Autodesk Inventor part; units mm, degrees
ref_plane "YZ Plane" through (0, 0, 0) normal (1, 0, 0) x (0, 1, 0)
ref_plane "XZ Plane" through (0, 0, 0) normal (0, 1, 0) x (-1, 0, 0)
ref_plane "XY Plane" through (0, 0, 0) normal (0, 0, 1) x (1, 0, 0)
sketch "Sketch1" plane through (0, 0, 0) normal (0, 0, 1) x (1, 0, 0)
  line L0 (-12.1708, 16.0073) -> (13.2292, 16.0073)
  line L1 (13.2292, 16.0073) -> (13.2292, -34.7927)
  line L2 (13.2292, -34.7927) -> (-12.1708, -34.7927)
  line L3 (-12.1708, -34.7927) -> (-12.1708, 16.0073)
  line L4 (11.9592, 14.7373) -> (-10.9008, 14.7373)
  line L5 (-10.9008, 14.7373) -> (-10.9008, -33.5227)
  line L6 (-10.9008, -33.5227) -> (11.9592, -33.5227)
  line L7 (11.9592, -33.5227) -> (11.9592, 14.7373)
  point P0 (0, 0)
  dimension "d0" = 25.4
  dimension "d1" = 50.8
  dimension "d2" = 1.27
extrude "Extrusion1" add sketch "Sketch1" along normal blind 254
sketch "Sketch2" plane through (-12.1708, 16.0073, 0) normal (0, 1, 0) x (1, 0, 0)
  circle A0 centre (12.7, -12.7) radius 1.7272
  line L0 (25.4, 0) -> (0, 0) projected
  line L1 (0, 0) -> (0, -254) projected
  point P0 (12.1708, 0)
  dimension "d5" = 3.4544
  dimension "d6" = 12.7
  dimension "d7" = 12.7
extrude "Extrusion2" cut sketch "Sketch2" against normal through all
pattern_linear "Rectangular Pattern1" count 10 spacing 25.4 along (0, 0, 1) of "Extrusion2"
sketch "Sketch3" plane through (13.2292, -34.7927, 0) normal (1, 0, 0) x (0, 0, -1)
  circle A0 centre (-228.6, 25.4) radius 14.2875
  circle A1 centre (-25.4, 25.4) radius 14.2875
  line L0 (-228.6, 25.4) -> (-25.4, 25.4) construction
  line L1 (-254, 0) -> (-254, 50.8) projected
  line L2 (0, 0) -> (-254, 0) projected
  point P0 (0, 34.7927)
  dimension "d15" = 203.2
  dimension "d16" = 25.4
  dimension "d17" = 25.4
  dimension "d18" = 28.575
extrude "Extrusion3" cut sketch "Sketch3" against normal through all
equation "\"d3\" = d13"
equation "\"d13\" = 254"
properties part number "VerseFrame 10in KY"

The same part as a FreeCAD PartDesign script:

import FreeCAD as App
import Part
import Sketcher

V = App.Vector
Q = App.Units.Quantity

doc = App.newDocument("Part")
body = doc.addObject("PartDesign::Body", "Body")

# Sketch on XY plane
sketch1 = doc.addObject("Sketcher::SketchObject", "Sketch")
body.addObject(sketch1)
sketch1.AttachmentSupport = (doc.XY_Plane, [""])
sketch1.MapMode = "FlatFace"
sketch1.addGeometry(Part.LineSegment(V(13, 16, 0), V(-12, 16, 0)), False)
sketch1.addGeometry(Part.LineSegment(V(-12, 16, 0), V(-12, -35, 0)), False)
sketch1.addGeometry(Part.LineSegment(V(-12, -35, 0), V(13, -35, 0)), False)
sketch1.addGeometry(Part.LineSegment(V(13, -35, 0), V(13, 16, 0)), False)
sketch1.addGeometry(Part.LineSegment(V(-11, 15, 0), V(12, 15, 0)), False)
sketch1.addGeometry(Part.LineSegment(V(12, 15, 0), V(12, -34, 0)), False)
sketch1.addGeometry(Part.LineSegment(V(12, -34, 0), V(-11, -34, 0)), False)
sketch1.addGeometry(Part.LineSegment(V(-11, -34, 0), V(-11, 15, 0)), False)
sketch1.addConstraint(Sketcher.Constraint("Coincident", 0, 2, 1, 1))
sketch1.addConstraint(Sketcher.Constraint("Coincident", 1, 2, 2, 1))
sketch1.addConstraint(Sketcher.Constraint("Coincident", 2, 2, 3, 1))
sketch1.addConstraint(Sketcher.Constraint("Coincident", 3, 2, 0, 1))
sketch1.addConstraint(Sketcher.Constraint("Coincident", 4, 2, 5, 1))
sketch1.addConstraint(Sketcher.Constraint("Coincident", 5, 2, 6, 1))
sketch1.addConstraint(Sketcher.Constraint("Coincident", 6, 2, 7, 1))
sketch1.addConstraint(Sketcher.Constraint("Coincident", 7, 2, 4, 1))
sketch1.addConstraint(Sketcher.Constraint("Horizontal", 0))
sketch1.addConstraint(Sketcher.Constraint("Vertical", 1))
sketch1.addConstraint(Sketcher.Constraint("Horizontal", 2))
sketch1.addConstraint(Sketcher.Constraint("Vertical", 3))
sketch1.addConstraint(Sketcher.Constraint("Horizontal", 4))
sketch1.addConstraint(Sketcher.Constraint("Vertical", 5))
sketch1.addConstraint(Sketcher.Constraint("Horizontal", 6))
sketch1.addConstraint(Sketcher.Constraint("Vertical", 7))
sketch1.addConstraint(Sketcher.Constraint("DistanceX", 0, 2, 0, 1, Q("1 in")))
sketch1.addConstraint(Sketcher.Constraint("DistanceY", 1, 2, 1, 1, Q("2 in")))
sketch1.addConstraint(Sketcher.Constraint("DistanceX", 4, 2, 3, 2, Q("0.05 in")))
sketch1.addConstraint(Sketcher.Constraint("DistanceY", 4, 2, 3, 2, Q("0.05 in")))
sketch1.addConstraint(Sketcher.Constraint("DistanceY", 2, 2, 5, 2, Q("0.05 in")))
sketch1.addConstraint(Sketcher.Constraint("DistanceX", 1, 2, 6, 2, Q("0.05 in")))
sketch1.addConstraint(Sketcher.Constraint("DistanceY", -1, 1, 0, 2, Q("0.6302 in")))
sketch1.addConstraint(Sketcher.Constraint("DistanceX", 0, 2, -1, 1, 12.1708))
pad1 = doc.addObject("PartDesign::Pad", "Pad")
body.addObject(pad1)
pad1.Profile = sketch1
pad1.Length = Q("10 in")

# Sketch on XZ plane
sketch2 = doc.addObject("Sketcher::SketchObject", "Sketch001")
body.addObject(sketch2)
sketch2.AttachmentSupport = (doc.XZ_Plane, [""])
sketch2.MapMode = "FlatFace"
sketch2.AttachmentOffset = App.Placement(V(0, 0, -0.6302087 * 25.4), App.Rotation())
sketch2.addGeometry(Part.Circle(V(0.5, 12.7, 0), V(0, 0, 1), 1.7), False)
sketch2.addConstraint(Sketcher.Constraint("Diameter", 0, Q("0.136 in")))
sketch2.addConstraint(Sketcher.Constraint("DistanceY", -1, 1, 0, 3, Q("0.5 in")))
sketch2.addConstraint(Sketcher.Constraint("DistanceX", -1, 1, 0, 3, 0.5292))
pocket1 = doc.addObject("PartDesign::Pocket", "Pocket")
body.addObject(pocket1)
pocket1.Profile = sketch2
pocket1.Type = "ThroughAll"
pocket1.Reversed = True
doc.recompute()

linearpattern = doc.addObject("PartDesign::LinearPattern", "LinearPattern")
body.addObject(linearpattern)
linearpattern.Originals = [pocket1]
linearpattern.Direction = (doc.Z_Axis, [""])
linearpattern.Mode = "offset"
linearpattern.Offset = Q("1 in")
linearpattern.Occurrences = 10
body.Tip = linearpattern

# Sketch on YZ plane
sketch3 = doc.addObject("Sketcher::SketchObject", "Sketch002")
body.addObject(sketch3)
sketch3.AttachmentSupport = (doc.YZ_Plane, [""])
sketch3.MapMode = "FlatFace"
sketch3.AttachmentOffset = App.Placement(V(0, 0, 13.2292), App.Rotation())
sketch3.addGeometry(Part.Circle(V(-9, 229, 0), V(0, 0, 1), 14), False)
sketch3.addGeometry(Part.Circle(V(-9, 25, 0), V(0, 0, 1), 14), False)
sketch3.addConstraint(Sketcher.Constraint("Equal", 0, 1))
sketch3.addConstraint(Sketcher.Constraint("Vertical", 0, 3, 1, 3))
sketch3.addConstraint(Sketcher.Constraint("Diameter", 0, Q("1.125 in")))
sketch3.addConstraint(Sketcher.Constraint("DistanceY", -1, 1, 1, 3, Q("1 in")))
sketch3.addConstraint(Sketcher.Constraint("DistanceY", 1, 3, 0, 3, Q("8 in")))
sketch3.addConstraint(Sketcher.Constraint("DistanceX", 0, 3, -1, 1, Q("0.3698 in")))
pocket2 = doc.addObject("PartDesign::Pocket", "Pocket001")
body.addObject(pocket2)
pocket2.Profile = sketch3
pocket2.Type = "ThroughAll"

doc.recompute()
